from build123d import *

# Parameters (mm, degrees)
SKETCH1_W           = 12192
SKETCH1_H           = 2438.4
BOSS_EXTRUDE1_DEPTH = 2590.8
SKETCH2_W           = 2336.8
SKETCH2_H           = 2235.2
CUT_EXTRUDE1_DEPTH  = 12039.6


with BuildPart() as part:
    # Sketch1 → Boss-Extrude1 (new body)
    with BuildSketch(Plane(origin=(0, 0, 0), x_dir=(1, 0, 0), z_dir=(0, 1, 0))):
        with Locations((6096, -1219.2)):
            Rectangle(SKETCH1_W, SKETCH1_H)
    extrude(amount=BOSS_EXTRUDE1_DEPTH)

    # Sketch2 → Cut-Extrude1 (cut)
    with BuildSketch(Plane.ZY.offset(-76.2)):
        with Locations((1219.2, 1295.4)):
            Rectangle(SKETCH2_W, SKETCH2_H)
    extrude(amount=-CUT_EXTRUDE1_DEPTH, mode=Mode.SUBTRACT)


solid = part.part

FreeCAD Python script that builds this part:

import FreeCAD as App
import Part
import Sketcher
Q = App.Units.Quantity


def add_polygon(sketch, points):
    """Adds a closed chain of lines whose ends are joined by coincident constraints."""
    first, n = sketch.GeometryCount, len(points)
    for a, b in zip(points, points[1:] + points[:1]):
        sketch.addGeometry(Part.LineSegment(App.Vector(*a, 0), App.Vector(*b, 0)), False)
    for i in range(n):
        sketch.addConstraint(Sketcher.Constraint("Coincident", first + i, 2, first + (i + 1) % n, 1))

doc = App.newDocument("Part")
params = doc.addObject("Spreadsheet::Sheet", "Params")
for row, (alias, value) in enumerate([
    ("sketch1_width", "480 in"),
    ("sketch1_height", "96 in"),
    ("pad1_length", "102 in"),
    ("sketch2_width", "88 in"),
    ("sketch2_height", "92 in"),
    ("pocket1_length", "474 in"),
], start=1):
    params.set(f"A{row}", alias)
    params.set(f"B{row}", "=" + value)
    params.setAlias(f"B{row}", alias)

body = doc.addObject("PartDesign::Body", "Body")

# Sketch on XZ plane
sketch1 = doc.addObject("Sketcher::SketchObject", "Sketch")
body.addObject(sketch1)
sketch1.AttachmentSupport = (doc.XZ_Plane, [""])
sketch1.MapMode = "FlatFace"
add_polygon(sketch1, [(0, 0), (0, 2438.4), (12192, 2438.4), (12192, 0)])  # lines 0-3
sketch1.addConstraint([
    Sketcher.Constraint("Vertical", 0),
    Sketcher.Constraint("Horizontal", 1),
    Sketcher.Constraint("Vertical", 2),
    Sketcher.Constraint("Horizontal", 3),
    Sketcher.Constraint("Coincident", 3, 2, -1, 1),
    Sketcher.Constraint("DistanceX", 1, 1, 1, 2, Q("480 in")),
    Sketcher.Constraint("DistanceY", 0, 1, 0, 2, Q("96 in")),
])
sketch1.setExpression("Constraints[9]", "Params.sketch1_width")
sketch1.setExpression("Constraints[10]", "Params.sketch1_height")
pad1 = doc.addObject("PartDesign::Pad", "Pad")
body.addObject(pad1)
pad1.Profile = sketch1
pad1.setExpression("Length", "Params.pad1_length")
pad1.Reversed = True

# Sketch on YZ plane
sketch2 = doc.addObject("Sketcher::SketchObject", "Sketch001")
body.addObject(sketch2)
sketch2.AttachmentSupport = (doc.YZ_Plane, [""])
sketch2.MapMode = "FlatFace"
sketch2.AttachmentOffset = App.Placement(App.Vector(0, 0, 3 * 25.4), App.Rotation())
add_polygon(sketch2, [(2413, 50.8), (177.8, 50.8), (177.8, 2387.6), (2413, 2387.6)])  # lines 0-3
sketch2.addConstraint([
    Sketcher.Constraint("Horizontal", 0),
    Sketcher.Constraint("Vertical", 1),
    Sketcher.Constraint("Horizontal", 2),
    Sketcher.Constraint("Vertical", 3),
    Sketcher.Constraint("DistanceX", 0, 2, 0, 1, Q("88 in")),
    Sketcher.Constraint("DistanceY", 1, 1, 1, 2, Q("92 in")),
    Sketcher.Constraint("DistanceX", -1, 1, 0, 2, Q("7 in")),
    Sketcher.Constraint("DistanceY", -1, 1, 0, 2, Q("2 in")),
])
sketch2.setExpression("Constraints[8]", "Params.sketch2_width")
sketch2.setExpression("Constraints[9]", "Params.sketch2_height")
pocket1 = doc.addObject("PartDesign::Pocket", "Pocket")
body.addObject(pocket1)
pocket1.Profile = sketch2
pocket1.setExpression("Length", "Params.pocket1_length")
pocket1.Reversed = True

doc.recompute()
